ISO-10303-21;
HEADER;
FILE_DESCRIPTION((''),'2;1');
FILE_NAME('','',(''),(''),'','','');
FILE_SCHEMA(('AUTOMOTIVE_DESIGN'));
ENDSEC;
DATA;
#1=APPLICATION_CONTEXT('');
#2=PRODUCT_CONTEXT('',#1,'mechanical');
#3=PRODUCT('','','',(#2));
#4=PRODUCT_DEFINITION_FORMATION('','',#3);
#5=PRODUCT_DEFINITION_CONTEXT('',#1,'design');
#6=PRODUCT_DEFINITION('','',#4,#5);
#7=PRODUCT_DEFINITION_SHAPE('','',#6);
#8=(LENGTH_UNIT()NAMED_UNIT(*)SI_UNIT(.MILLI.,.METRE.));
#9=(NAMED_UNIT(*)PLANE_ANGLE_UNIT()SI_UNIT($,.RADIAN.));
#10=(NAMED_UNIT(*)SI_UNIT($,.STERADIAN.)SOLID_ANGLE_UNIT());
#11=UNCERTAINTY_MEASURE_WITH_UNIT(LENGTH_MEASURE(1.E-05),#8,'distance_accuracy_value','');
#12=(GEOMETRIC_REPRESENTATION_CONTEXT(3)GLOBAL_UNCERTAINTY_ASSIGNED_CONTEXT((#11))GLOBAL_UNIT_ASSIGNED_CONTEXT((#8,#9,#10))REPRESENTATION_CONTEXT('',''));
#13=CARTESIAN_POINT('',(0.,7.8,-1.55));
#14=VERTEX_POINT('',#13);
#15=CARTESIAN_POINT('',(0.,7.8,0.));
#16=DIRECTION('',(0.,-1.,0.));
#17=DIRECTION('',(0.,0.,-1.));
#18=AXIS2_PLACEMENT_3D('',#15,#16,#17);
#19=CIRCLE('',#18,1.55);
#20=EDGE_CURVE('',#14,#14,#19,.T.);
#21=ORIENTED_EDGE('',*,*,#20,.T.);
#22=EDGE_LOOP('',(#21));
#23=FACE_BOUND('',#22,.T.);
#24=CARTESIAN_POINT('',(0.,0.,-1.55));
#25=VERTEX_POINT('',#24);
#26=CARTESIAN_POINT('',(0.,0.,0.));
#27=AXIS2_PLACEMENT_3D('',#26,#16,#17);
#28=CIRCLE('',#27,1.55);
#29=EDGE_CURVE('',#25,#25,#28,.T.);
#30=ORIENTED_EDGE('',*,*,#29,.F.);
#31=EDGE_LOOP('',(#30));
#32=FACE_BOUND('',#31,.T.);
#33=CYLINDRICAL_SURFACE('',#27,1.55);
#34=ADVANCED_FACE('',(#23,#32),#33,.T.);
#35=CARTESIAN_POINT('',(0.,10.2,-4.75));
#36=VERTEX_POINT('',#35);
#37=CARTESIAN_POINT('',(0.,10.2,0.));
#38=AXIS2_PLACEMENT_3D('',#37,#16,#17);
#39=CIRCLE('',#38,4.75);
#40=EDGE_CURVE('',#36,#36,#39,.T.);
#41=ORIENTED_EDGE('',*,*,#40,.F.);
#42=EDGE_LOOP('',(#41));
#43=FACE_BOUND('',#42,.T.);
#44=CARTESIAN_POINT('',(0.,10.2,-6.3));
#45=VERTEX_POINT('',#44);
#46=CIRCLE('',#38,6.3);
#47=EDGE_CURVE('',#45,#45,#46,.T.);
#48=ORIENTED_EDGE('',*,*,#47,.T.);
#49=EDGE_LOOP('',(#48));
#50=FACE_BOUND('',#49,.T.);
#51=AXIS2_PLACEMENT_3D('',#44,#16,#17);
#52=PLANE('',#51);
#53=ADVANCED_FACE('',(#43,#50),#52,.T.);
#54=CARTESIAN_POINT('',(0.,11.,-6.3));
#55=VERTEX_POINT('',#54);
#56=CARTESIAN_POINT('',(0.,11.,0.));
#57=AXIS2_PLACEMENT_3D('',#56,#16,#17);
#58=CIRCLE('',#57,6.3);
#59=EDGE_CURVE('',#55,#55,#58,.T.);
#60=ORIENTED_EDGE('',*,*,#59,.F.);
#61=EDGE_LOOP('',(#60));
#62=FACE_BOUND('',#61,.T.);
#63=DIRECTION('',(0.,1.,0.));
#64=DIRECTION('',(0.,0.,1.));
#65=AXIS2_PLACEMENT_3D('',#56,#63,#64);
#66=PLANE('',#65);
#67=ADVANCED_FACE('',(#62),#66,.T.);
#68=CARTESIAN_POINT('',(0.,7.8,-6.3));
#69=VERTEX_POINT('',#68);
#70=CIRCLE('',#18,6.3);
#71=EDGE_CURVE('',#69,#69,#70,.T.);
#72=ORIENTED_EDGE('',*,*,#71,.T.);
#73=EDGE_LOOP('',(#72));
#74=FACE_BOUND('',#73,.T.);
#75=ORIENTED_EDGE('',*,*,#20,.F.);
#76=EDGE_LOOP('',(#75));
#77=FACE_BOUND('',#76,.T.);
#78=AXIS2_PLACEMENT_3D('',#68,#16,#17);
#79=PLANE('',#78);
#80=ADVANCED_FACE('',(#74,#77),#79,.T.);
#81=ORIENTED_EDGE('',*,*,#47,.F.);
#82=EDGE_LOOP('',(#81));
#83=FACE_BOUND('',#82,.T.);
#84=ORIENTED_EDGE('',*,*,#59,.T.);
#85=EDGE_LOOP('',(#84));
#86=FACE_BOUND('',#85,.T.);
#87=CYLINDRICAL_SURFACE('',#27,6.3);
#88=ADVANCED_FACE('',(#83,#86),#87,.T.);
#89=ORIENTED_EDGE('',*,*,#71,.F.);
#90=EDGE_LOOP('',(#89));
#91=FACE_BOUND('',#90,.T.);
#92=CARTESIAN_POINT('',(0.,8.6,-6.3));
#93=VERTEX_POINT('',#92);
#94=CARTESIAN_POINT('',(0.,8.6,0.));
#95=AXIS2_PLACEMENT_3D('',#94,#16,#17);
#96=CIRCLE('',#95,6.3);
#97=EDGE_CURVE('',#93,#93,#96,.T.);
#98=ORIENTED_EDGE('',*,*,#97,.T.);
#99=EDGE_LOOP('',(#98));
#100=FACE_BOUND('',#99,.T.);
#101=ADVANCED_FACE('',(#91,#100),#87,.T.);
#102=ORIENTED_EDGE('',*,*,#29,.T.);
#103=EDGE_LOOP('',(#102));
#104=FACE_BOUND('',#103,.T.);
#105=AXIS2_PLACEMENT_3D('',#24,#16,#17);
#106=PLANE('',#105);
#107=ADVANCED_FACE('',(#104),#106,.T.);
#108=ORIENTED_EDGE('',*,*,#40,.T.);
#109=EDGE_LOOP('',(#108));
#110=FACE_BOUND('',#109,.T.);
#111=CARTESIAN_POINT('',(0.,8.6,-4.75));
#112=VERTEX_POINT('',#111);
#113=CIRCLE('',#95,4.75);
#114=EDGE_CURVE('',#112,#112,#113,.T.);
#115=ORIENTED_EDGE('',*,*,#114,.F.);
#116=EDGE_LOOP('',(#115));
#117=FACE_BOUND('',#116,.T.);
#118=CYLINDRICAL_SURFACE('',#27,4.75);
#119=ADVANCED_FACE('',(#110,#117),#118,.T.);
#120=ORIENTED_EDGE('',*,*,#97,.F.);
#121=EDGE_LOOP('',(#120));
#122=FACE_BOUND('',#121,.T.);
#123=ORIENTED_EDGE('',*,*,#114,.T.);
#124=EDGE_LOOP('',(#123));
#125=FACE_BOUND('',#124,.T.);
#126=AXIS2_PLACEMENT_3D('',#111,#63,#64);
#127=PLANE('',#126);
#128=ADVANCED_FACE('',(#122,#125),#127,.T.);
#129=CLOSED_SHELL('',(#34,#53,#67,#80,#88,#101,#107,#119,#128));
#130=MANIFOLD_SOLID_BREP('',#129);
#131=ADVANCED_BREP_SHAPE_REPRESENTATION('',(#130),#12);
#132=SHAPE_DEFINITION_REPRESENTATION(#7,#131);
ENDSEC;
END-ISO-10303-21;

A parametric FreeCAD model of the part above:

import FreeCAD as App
import Part
import Sketcher
Q = App.Units.Quantity

doc = App.newDocument("Part")
params = doc.addObject("Spreadsheet::Sheet", "Params")
for row, (alias, value) in enumerate([
    ("sketch1_width", "11 mm"),
    ("sketch1_width2", "7.8 mm"),
    ("sketch1_width3", "0.8 mm"),
    ("sketch1_height", "6.3 mm"),
    ("sketch1_height2", "1.55 mm"),
    ("revolution_angle", "360 deg"),
], start=1):
    params.set(f"A{row}", alias)
    params.set(f"B{row}", "=" + value)
    params.setAlias(f"B{row}", alias)

body = doc.addObject("PartDesign::Body", "Body")

# Sketch on YZ plane
sketch1 = doc.addObject("Sketcher::SketchObject", "Sketch")
body.addObject(sketch1)
sketch1.AttachmentSupport = (doc.YZ_Plane, [""])
sketch1.MapMode = "FlatFace"
sketch1.addGeometry([
    Part.LineSegment(App.Vector(11, 0, 0), App.Vector(0, 0, 0)),  # 0
    Part.LineSegment(App.Vector(0, 0, 0), App.Vector(0, -1.6, 0)),  # 1
    Part.LineSegment(App.Vector(0, -1.6, 0), App.Vector(7.8, -1.6, 0)),  # 2
    Part.LineSegment(App.Vector(7.8, -1.6, 0), App.Vector(7.8, -6.3, 0)),  # 3
    Part.LineSegment(App.Vector(7.8, -6.3, 0), App.Vector(8.6, -6.3, 0)),  # 4
    Part.LineSegment(App.Vector(8.6, -6.3, 0), App.Vector(8.6, -4.8, 0)),  # 5
    Part.LineSegment(App.Vector(8.6, -4.8, 0), App.Vector(10.2, -4.8, 0)),  # 6
    Part.LineSegment(App.Vector(10.2, -4.8, 0), App.Vector(10.2, -6.3, 0)),  # 7
    Part.LineSegment(App.Vector(10.2, -6.3, 0), App.Vector(11, -6.3, 0)),  # 8
    Part.LineSegment(App.Vector(11, -6.3, 0), App.Vector(11, 0, 0)),  # 9
], False)
sketch1.addConstraint([
    Sketcher.Constraint("Coincident", 0, 2, 1, 1),
    Sketcher.Constraint("Coincident", 1, 2, 2, 1),
    Sketcher.Constraint("Coincident", 2, 2, 3, 1),
    Sketcher.Constraint("Coincident", 3, 2, 4, 1),
    Sketcher.Constraint("Coincident", 4, 2, 5, 1),
    Sketcher.Constraint("Coincident", 5, 2, 6, 1),
    Sketcher.Constraint("Coincident", 6, 2, 7, 1),
    Sketcher.Constraint("Coincident", 7, 2, 8, 1),
    Sketcher.Constraint("Coincident", 8, 2, 9, 1),
    Sketcher.Constraint("Coincident", 9, 2, 0, 1),
    Sketcher.Constraint("Horizontal", 0),
    Sketcher.Constraint("Vertical", 1),
    Sketcher.Constraint("Horizontal", 2),
    Sketcher.Constraint("Vertical", 3),
    Sketcher.Constraint("Horizontal", 4),
    Sketcher.Constraint("Vertical", 5),
    Sketcher.Constraint("Horizontal", 6),
    Sketcher.Constraint("Vertical", 7),
    Sketcher.Constraint("Horizontal", 8),
    Sketcher.Constraint("Vertical", 9),
    Sketcher.Constraint("Coincident", 0, 2, -1, 1),
    Sketcher.Constraint("Horizontal", 4, 2, 7, 2),
    Sketcher.Constraint("Equal", 4, 8),
    Sketcher.Constraint("Equal", 1, 5),
    Sketcher.Constraint("DistanceX", 0, 2, 0, 1, Q("11 mm")),
    Sketcher.Constraint("DistanceX", 2, 1, 2, 2, Q("7.8 mm")),
    Sketcher.Constraint("DistanceX", 4, 1, 4, 2, Q("0.8 mm")),
    Sketcher.Constraint("DistanceY", 9, 1, 9, 2, Q("6.3 mm")),
    Sketcher.Constraint("DistanceY", 1, 2, 1, 1, Q("1.55 mm")),
])
sketch1.setExpression("Constraints[24]", "Params.sketch1_width")
sketch1.setExpression("Constraints[25]", "Params.sketch1_width2")
sketch1.setExpression("Constraints[26]", "Params.sketch1_width3")
sketch1.setExpression("Constraints[27]", "Params.sketch1_height")
sketch1.setExpression("Constraints[28]", "Params.sketch1_height2")
revolution = doc.addObject("PartDesign::Revolution", "Revolution")
body.addObject(revolution)
revolution.Profile = sketch1
revolution.ReferenceAxis = (sketch1, ["H_Axis"])
revolution.setExpression("Angle", "Params.revolution_angle")

doc.recompute()
